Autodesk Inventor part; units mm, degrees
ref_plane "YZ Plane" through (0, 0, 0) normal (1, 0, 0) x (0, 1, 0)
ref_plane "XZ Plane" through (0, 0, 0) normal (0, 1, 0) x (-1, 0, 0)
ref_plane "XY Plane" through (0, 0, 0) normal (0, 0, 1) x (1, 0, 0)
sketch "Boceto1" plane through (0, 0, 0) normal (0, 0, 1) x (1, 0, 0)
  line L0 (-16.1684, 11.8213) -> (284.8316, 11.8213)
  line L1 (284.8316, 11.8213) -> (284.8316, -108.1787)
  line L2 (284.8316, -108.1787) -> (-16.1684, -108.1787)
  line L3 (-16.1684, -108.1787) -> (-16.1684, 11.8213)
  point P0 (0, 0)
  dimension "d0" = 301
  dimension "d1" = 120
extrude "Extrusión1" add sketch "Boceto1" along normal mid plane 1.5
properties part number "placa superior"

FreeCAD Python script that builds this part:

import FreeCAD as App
import Part
import Sketcher
from FreeCAD import Vector
Q = App.Units.Quantity


def add_polygon(sketch, points):
    """Adds a closed chain of lines whose ends are joined by coincident constraints."""
    first, n = sketch.GeometryCount, len(points)
    for a, b in zip(points, points[1:] + points[:1]):
        sketch.addGeometry(Part.LineSegment(App.Vector(*a, 0), App.Vector(*b, 0)), False)
    for i in range(n):
        sketch.addConstraint(Sketcher.Constraint("Coincident", first + i, 2, first + (i + 1) % n, 1))

doc = App.newDocument("Part")
body = doc.addObject("PartDesign::Body", "Body")

sketch1 = doc.addObject("Sketcher::SketchObject", "Sketch")
body.addObject(sketch1)
sketch1.AttachmentSupport = (doc.XY_Plane, [""])
sketch1.MapMode = "FlatFace"
add_polygon(sketch1, [(285, 12), (-16, 12), (-16, -108), (285, -108)])
sketch1.addConstraint([
    Sketcher.Constraint("Horizontal", 0),
    Sketcher.Constraint("Vertical", 1),
    Sketcher.Constraint("Horizontal", 2),
    Sketcher.Constraint("Vertical", 3),
    Sketcher.Constraint("DistanceX", 0, 2, 0, 1, Q("301 mm")),
    Sketcher.Constraint("DistanceY", 1, 2, 1, 1, Q("120 mm")),
    Sketcher.Constraint("DistanceX", 0, 2, -1, 1, Q("16.1684 mm")),
    Sketcher.Constraint("DistanceY", -1, 1, 0, 2, Q("11.8213 mm")),
])
pad1 = doc.addObject("PartDesign::Pad", "Pad")
body.addObject(pad1)
pad1.Profile = sketch1
pad1.Length = 1.5
pad1.Midplane = True

doc.recompute()
